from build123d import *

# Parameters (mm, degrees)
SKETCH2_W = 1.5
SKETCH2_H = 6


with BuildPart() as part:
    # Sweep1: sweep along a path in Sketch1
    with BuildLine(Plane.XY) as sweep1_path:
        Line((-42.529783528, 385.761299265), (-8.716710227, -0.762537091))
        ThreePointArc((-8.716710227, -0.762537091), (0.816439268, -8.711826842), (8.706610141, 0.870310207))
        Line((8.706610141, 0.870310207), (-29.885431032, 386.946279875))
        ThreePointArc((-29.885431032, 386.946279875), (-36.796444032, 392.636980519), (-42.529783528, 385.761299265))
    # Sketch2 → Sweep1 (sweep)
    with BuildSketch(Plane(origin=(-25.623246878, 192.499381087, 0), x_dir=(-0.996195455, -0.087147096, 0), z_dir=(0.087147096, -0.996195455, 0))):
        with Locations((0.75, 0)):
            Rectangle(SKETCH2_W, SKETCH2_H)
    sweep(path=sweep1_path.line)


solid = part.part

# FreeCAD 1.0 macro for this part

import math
import FreeCAD as App
import Part
import Sketcher

V = App.Vector
Q = App.Units.Quantity


def add_polygon(sketch, points):
    """Adds a closed chain of lines whose ends are joined by coincident constraints."""
    first, n = sketch.GeometryCount, len(points)
    for a, b in zip(points, points[1:] + points[:1]):
        sketch.addGeometry(Part.LineSegment(App.Vector(*a, 0), App.Vector(*b, 0)), False)
    for i in range(n):
        sketch.addConstraint(Sketcher.Constraint("Coincident", first + i, 2, first + (i + 1) % n, 1))

doc = App.newDocument("Part")
params = doc.addObject("Spreadsheet::Sheet", "Params")
for row, (alias, value) in enumerate([
    ("sketch1_height", "6 mm"),
    ("sketch1_width", "1.5 mm"),
    ("sketch2_radius", "8.75 mm"),
    ("sketch2_radius2", "6.35 mm"),
    ("sketch2_length", "388 mm"),
], start=1):
    params.set(f"A{row}", alias)
    params.set(f"B{row}", "=" + value)
    params.setAlias(f"B{row}", alias)

body = doc.addObject("PartDesign::Body", "Body")

# Sketch on an angled plane
sketch1 = body.newObject("Sketcher::SketchObject", "Sketch")
sketch1.Placement = App.Placement(V(-25.623247, 192.499381, 0), App.Rotation(V(-0.996195455, -0.087147096, 0), V(0, 0, -1.000000001), V(0.087147096, -0.996195455, 0), "ZXY"))
add_polygon(sketch1, [(0, 3), (0, -3), (1.5, -3), (1.5, 3)])  # lines 0-3
sketch1.addConstraint([
    Sketcher.Constraint("Vertical", 0),
    Sketcher.Constraint("Horizontal", 1),
    Sketcher.Constraint("Vertical", 2),
    Sketcher.Constraint("Horizontal", 3),
    Sketcher.Constraint("Symmetric", 0, 2, 3, 2, -1, 1),
    Sketcher.Constraint("DistanceY", 0, 2, 0, 1, Q("6 mm")),
    Sketcher.Constraint("DistanceX", 1, 1, 1, 2, Q("1.5 mm")),
])
sketch1.setExpression("Constraints[9]", "Params.sketch1_height")
sketch1.setExpression("Constraints[10]", "Params.sketch1_width")

# Sketch on XY plane
sketch2 = body.newObject("Sketcher::SketchObject", "Sketch001")
sketch2.AttachmentSupport = (doc.getObject("XY_Plane"), [""])
sketch2.MapMode = "FlatFace"
sketch2.addGeometry([
    Part.LineSegment(V(-42.529784, 385.761299, 0), V(-8.71671, -0.762537, 0)),
    Part.ArcOfCircle(Part.Circle(V(0, 0, 0), V(0, 0, 1), 8.75), math.radians(-175.000497), math.radians(5.708307)),
    Part.LineSegment(V(8.70661, 0.87031, 0), V(-29.885431, 386.94628, 0)),
    Part.ArcOfCircle(Part.Circle(V(-36.203942, 386.314683, 0), V(0, 0, 1), 6.35), math.radians(5.708307), math.radians(184.999503)),
], False)
sketch2.addConstraint([
    Sketcher.Constraint("Tangent", 0, 2, 1, 1),
    Sketcher.Constraint("Tangent", 1, 2, 2, 1),
    Sketcher.Constraint("Tangent", 2, 2, 3, 1),
    Sketcher.Constraint("Tangent", 3, 2, 0, 1),
    Sketcher.Constraint("Coincident", 1, 3, -1, 1),
    Sketcher.Constraint("Radius", 1, Q("8.75 mm")),
    Sketcher.Constraint("Radius", 3, Q("6.35 mm")),
    Sketcher.Constraint("Distance", 0, Q("388 mm")),
    Sketcher.Constraint("DistanceY", -1, 1, 3, 2, Q("385.761299 mm")),
])
sketch2.setExpression("Constraints[5]", "Params.sketch2_radius")
sketch2.setExpression("Constraints[6]", "Params.sketch2_radius2")
sketch2.setExpression("Constraints[7]", "Params.sketch2_length")
doc.recompute()

additivepipe = body.newObject("PartDesign::AdditivePipe", "AdditivePipe")
additivepipe.Profile = sketch1
additivepipe.Spine = (sketch2, ["Edge1", "Edge2", "Edge3", "Edge4"])

doc.recompute()
